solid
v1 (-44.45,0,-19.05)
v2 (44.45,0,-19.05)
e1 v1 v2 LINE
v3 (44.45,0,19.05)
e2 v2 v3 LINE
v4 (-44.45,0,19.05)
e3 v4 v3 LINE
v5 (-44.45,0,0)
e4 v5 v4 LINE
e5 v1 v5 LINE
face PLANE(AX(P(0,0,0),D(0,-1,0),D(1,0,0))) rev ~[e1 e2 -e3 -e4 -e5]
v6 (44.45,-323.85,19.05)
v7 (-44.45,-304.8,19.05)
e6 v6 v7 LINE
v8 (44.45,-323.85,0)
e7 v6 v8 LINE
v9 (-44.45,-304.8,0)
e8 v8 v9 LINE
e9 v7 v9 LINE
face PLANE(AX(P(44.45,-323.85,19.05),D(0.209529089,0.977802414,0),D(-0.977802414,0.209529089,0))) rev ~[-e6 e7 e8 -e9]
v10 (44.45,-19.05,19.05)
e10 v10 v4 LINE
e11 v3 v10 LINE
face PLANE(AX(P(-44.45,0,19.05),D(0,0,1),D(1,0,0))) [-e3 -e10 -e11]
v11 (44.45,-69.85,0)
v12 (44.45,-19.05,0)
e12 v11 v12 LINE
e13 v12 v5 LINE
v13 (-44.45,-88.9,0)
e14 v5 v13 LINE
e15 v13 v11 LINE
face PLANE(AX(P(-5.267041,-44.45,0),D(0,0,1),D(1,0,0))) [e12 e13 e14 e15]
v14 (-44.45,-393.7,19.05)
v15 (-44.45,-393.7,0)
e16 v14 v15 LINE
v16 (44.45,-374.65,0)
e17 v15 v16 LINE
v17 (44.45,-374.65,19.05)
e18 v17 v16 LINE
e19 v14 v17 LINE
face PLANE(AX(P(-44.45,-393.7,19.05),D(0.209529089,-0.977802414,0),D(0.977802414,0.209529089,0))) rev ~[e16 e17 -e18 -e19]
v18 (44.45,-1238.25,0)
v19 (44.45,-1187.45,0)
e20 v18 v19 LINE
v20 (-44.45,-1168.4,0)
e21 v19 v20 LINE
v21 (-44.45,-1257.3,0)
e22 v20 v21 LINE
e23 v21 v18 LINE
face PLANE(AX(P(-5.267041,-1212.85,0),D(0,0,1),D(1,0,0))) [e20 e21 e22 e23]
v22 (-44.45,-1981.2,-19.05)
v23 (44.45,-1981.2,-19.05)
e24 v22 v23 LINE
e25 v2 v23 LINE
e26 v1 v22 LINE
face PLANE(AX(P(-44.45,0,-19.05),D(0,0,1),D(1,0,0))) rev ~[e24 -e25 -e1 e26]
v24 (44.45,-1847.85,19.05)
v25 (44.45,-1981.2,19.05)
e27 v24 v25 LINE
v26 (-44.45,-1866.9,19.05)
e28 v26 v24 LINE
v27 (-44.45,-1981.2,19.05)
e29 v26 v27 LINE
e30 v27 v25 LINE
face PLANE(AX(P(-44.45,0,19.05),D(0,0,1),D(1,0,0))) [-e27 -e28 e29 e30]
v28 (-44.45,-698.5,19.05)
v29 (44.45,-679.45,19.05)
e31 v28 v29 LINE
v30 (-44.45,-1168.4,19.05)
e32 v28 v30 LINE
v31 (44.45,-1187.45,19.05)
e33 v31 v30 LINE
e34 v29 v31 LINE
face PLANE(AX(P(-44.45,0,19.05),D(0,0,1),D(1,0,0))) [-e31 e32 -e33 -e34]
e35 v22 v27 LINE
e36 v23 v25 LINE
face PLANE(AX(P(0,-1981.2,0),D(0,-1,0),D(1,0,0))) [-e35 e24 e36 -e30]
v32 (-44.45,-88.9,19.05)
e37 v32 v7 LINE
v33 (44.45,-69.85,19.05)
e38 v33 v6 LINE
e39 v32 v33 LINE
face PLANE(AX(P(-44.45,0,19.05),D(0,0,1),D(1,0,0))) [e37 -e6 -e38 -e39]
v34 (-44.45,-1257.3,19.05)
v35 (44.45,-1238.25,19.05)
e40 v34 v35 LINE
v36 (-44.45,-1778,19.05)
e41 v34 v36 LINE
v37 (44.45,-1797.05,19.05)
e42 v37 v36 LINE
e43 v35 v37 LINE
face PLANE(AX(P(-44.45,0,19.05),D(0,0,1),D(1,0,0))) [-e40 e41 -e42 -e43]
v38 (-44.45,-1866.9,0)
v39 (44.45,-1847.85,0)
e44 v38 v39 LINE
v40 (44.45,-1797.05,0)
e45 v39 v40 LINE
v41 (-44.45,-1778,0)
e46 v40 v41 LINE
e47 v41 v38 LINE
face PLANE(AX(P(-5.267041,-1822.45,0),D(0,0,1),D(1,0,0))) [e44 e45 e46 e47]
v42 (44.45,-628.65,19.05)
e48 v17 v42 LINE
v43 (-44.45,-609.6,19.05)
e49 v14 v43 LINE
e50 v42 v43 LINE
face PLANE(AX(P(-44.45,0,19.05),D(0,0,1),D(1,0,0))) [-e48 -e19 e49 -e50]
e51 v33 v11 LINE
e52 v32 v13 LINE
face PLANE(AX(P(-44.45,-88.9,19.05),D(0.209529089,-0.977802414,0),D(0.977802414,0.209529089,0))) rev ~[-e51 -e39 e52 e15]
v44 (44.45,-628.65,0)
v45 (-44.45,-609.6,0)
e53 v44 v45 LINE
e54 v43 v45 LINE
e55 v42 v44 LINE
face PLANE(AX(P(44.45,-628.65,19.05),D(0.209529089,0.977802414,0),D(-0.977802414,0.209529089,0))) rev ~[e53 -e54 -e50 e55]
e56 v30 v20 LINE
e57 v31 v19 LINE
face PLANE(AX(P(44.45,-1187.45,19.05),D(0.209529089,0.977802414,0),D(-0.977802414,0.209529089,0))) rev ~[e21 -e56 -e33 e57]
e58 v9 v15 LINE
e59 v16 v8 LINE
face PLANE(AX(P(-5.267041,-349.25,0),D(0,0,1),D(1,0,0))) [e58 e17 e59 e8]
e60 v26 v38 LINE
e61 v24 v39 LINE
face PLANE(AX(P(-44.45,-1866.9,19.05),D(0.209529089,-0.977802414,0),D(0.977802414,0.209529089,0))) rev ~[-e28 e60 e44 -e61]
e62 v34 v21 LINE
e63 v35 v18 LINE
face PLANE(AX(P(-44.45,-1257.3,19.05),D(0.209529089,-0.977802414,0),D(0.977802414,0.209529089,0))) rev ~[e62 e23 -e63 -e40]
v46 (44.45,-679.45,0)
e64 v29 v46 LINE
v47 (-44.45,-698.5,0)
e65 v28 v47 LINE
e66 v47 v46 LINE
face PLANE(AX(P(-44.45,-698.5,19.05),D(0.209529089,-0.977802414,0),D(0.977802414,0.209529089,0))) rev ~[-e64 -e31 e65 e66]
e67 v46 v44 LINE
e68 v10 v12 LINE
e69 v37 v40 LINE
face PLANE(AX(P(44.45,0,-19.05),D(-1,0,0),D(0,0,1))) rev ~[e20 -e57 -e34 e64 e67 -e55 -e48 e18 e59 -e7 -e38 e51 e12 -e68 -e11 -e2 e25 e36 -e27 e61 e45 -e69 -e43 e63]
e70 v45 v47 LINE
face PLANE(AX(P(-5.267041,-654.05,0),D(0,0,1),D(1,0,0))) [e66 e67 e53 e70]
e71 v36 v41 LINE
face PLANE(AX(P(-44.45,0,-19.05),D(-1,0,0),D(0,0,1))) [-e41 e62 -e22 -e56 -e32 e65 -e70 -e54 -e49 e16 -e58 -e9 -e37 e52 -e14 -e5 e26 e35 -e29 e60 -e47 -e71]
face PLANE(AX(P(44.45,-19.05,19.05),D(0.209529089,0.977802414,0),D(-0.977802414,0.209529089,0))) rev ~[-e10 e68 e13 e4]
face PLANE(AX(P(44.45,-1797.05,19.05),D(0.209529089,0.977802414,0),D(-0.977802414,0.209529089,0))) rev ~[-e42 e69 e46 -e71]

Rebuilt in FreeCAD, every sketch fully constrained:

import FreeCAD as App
import Part
import Sketcher
Q = App.Units.Quantity


def add_polygon(sketch, points):
    """Adds a closed chain of lines whose ends are joined by coincident constraints."""
    first, n = sketch.GeometryCount, len(points)
    for a, b in zip(points, points[1:] + points[:1]):
        sketch.addGeometry(Part.LineSegment(App.Vector(*a, 0), App.Vector(*b, 0)), False)
    for i in range(n):
        sketch.addConstraint(Sketcher.Constraint("Coincident", first + i, 2, first + (i + 1) % n, 1))

doc = App.newDocument("Part")
params = doc.addObject("Spreadsheet::Sheet", "Params")
for row, (alias, value) in enumerate([
    ("sketch1_width", "3.5 in"),
    ("sketch1_height", "1.5 in"),
    ("pad1_length", "78 in"),
    ("sketch2_height", "2 in"),
    ("sketch2_height2", "3.5 in"),
    ("pocket1_length", "0.75 in"),
], start=1):
    params.set(f"A{row}", alias)
    params.set(f"B{row}", "=" + value)
    params.setAlias(f"B{row}", alias)

body = doc.addObject("PartDesign::Body", "Body")

# Sketch on XZ plane
sketch1 = doc.addObject("Sketcher::SketchObject", "Sketch")
body.addObject(sketch1)
sketch1.AttachmentSupport = (doc.XZ_Plane, [""])
sketch1.MapMode = "FlatFace"
add_polygon(sketch1, [(-44, 19), (-44, -19), (44, -19), (44, 19)])  # lines 0-3
sketch1.addConstraint([
    Sketcher.Constraint("Vertical", 0),
    Sketcher.Constraint("Horizontal", 1),
    Sketcher.Constraint("Vertical", 2),
    Sketcher.Constraint("Horizontal", 3),
    Sketcher.Constraint("Symmetric", 0, 2, 2, 2, -1, 1),
    Sketcher.Constraint("DistanceX", 1, 1, 1, 2, Q("3.5 in")),
    Sketcher.Constraint("DistanceY", 0, 2, 0, 1, Q("1.5 in")),
])
sketch1.setExpression("Constraints[9]", "Params.sketch1_width")
sketch1.setExpression("Constraints[10]", "Params.sketch1_height")
pad1 = doc.addObject("PartDesign::Pad", "Pad")
body.addObject(pad1)
pad1.Profile = sketch1
pad1.setExpression("Length", "Params.pad1_length")

# Sketch on XY plane
sketch2 = doc.addObject("Sketcher::SketchObject", "Sketch001")
body.addObject(sketch2)
sketch2.AttachmentSupport = (doc.XY_Plane, [""])
sketch2.MapMode = "FlatFace"
sketch2.AttachmentOffset = App.Placement(App.Vector(0, 0, 0.75 * 25.4), App.Rotation())
add_polygon(sketch2, [(44, -19), (-44, 0), (-44, -89), (44, -70)])  # lines 0-3
add_polygon(sketch2, [(44, -324), (-44, -305), (-44, -394), (44, -375)])  # lines 4-7
add_polygon(sketch2, [(44, -629), (-44, -610), (-44, -698), (44, -679)])  # lines 8-11
add_polygon(sketch2, [(44, -1187), (-44, -1168), (-44, -1257), (44, -1238)])  # lines 12-15
add_polygon(sketch2, [(44, -1797), (-44, -1778), (-44, -1867), (44, -1848)])  # lines 16-19
sketch2.addConstraint([
    Sketcher.Constraint("Vertical", 1),
    Sketcher.Constraint("Vertical", 3),
    Sketcher.Constraint("Vertical", 5),
    Sketcher.Constraint("Vertical", 7),
    Sketcher.Constraint("Vertical", 9),
    Sketcher.Constraint("Vertical", 11),
    Sketcher.Constraint("Vertical", 13),
    Sketcher.Constraint("Vertical", 15),
    Sketcher.Constraint("Vertical", 17),
    Sketcher.Constraint("Vertical", 19),
    Sketcher.Constraint("PointOnObject", 0, 2, -1),
    Sketcher.Constraint("Parallel", 0, 4),
    Sketcher.Constraint("Parallel", 2, 6),
    Sketcher.Constraint("Parallel", 4, 8),
    Sketcher.Constraint("Parallel", 6, 10),
    Sketcher.Constraint("Parallel", 8, 12),
    Sketcher.Constraint("Parallel", 10, 14),
    Sketcher.Constraint("Parallel", 12, 16),
    Sketcher.Constraint("Parallel", 14, 18),
    Sketcher.Constraint("Vertical", 1, 2, 4, 2),
    Sketcher.Constraint("Vertical", 3, 2, 6, 2),
    Sketcher.Constraint("Vertical", 5, 2, 8, 2),
    Sketcher.Constraint("Vertical", 7, 2, 10, 2),
    Sketcher.Constraint("Vertical", 9, 2, 12, 2),
    Sketcher.Constraint("Vertical", 11, 2, 14, 2),
    Sketcher.Constraint("Vertical", 13, 2, 16, 2),
    Sketcher.Constraint("Vertical", 15, 2, 18, 2),
    Sketcher.Constraint("Equal", 1, 5),
    Sketcher.Constraint("Equal", 5, 9),
    Sketcher.Constraint("Equal", 9, 13),
    Sketcher.Constraint("Equal", 13, 17),
    Sketcher.Constraint("Equal", 0, 2),
    Sketcher.Constraint("DistanceY", 3, 1, 3, 2, Q("2 in")),
    Sketcher.Constraint("DistanceY", 1, 2, 1, 1, Q("3.5 in")),
    Sketcher.Constraint("DistanceY", 4, 2, -1, 1, Q("12 in")),
    Sketcher.Constraint("DistanceY", 8, 2, -1, 1, Q("24 in")),
    Sketcher.Constraint("DistanceY", 12, 2, -1, 1, Q("46 in")),
    Sketcher.Constraint("DistanceY", 16, 2, -1, 1, Q("70 in")),
    Sketcher.Constraint("DistanceX", 1, 2, 2, 2, Q("3.5 in")),
    Sketcher.Constraint("DistanceX", 0, 2, -1, 1, Q("1.75 in")),
])
sketch2.setExpression("Constraints[52]", "Params.sketch2_height")
sketch2.setExpression("Constraints[53]", "Params.sketch2_height2")
pocket1 = doc.addObject("PartDesign::Pocket", "Pocket")
body.addObject(pocket1)
pocket1.Profile = sketch2
pocket1.setExpression("Length", "Params.pocket1_length")

doc.recompute()
